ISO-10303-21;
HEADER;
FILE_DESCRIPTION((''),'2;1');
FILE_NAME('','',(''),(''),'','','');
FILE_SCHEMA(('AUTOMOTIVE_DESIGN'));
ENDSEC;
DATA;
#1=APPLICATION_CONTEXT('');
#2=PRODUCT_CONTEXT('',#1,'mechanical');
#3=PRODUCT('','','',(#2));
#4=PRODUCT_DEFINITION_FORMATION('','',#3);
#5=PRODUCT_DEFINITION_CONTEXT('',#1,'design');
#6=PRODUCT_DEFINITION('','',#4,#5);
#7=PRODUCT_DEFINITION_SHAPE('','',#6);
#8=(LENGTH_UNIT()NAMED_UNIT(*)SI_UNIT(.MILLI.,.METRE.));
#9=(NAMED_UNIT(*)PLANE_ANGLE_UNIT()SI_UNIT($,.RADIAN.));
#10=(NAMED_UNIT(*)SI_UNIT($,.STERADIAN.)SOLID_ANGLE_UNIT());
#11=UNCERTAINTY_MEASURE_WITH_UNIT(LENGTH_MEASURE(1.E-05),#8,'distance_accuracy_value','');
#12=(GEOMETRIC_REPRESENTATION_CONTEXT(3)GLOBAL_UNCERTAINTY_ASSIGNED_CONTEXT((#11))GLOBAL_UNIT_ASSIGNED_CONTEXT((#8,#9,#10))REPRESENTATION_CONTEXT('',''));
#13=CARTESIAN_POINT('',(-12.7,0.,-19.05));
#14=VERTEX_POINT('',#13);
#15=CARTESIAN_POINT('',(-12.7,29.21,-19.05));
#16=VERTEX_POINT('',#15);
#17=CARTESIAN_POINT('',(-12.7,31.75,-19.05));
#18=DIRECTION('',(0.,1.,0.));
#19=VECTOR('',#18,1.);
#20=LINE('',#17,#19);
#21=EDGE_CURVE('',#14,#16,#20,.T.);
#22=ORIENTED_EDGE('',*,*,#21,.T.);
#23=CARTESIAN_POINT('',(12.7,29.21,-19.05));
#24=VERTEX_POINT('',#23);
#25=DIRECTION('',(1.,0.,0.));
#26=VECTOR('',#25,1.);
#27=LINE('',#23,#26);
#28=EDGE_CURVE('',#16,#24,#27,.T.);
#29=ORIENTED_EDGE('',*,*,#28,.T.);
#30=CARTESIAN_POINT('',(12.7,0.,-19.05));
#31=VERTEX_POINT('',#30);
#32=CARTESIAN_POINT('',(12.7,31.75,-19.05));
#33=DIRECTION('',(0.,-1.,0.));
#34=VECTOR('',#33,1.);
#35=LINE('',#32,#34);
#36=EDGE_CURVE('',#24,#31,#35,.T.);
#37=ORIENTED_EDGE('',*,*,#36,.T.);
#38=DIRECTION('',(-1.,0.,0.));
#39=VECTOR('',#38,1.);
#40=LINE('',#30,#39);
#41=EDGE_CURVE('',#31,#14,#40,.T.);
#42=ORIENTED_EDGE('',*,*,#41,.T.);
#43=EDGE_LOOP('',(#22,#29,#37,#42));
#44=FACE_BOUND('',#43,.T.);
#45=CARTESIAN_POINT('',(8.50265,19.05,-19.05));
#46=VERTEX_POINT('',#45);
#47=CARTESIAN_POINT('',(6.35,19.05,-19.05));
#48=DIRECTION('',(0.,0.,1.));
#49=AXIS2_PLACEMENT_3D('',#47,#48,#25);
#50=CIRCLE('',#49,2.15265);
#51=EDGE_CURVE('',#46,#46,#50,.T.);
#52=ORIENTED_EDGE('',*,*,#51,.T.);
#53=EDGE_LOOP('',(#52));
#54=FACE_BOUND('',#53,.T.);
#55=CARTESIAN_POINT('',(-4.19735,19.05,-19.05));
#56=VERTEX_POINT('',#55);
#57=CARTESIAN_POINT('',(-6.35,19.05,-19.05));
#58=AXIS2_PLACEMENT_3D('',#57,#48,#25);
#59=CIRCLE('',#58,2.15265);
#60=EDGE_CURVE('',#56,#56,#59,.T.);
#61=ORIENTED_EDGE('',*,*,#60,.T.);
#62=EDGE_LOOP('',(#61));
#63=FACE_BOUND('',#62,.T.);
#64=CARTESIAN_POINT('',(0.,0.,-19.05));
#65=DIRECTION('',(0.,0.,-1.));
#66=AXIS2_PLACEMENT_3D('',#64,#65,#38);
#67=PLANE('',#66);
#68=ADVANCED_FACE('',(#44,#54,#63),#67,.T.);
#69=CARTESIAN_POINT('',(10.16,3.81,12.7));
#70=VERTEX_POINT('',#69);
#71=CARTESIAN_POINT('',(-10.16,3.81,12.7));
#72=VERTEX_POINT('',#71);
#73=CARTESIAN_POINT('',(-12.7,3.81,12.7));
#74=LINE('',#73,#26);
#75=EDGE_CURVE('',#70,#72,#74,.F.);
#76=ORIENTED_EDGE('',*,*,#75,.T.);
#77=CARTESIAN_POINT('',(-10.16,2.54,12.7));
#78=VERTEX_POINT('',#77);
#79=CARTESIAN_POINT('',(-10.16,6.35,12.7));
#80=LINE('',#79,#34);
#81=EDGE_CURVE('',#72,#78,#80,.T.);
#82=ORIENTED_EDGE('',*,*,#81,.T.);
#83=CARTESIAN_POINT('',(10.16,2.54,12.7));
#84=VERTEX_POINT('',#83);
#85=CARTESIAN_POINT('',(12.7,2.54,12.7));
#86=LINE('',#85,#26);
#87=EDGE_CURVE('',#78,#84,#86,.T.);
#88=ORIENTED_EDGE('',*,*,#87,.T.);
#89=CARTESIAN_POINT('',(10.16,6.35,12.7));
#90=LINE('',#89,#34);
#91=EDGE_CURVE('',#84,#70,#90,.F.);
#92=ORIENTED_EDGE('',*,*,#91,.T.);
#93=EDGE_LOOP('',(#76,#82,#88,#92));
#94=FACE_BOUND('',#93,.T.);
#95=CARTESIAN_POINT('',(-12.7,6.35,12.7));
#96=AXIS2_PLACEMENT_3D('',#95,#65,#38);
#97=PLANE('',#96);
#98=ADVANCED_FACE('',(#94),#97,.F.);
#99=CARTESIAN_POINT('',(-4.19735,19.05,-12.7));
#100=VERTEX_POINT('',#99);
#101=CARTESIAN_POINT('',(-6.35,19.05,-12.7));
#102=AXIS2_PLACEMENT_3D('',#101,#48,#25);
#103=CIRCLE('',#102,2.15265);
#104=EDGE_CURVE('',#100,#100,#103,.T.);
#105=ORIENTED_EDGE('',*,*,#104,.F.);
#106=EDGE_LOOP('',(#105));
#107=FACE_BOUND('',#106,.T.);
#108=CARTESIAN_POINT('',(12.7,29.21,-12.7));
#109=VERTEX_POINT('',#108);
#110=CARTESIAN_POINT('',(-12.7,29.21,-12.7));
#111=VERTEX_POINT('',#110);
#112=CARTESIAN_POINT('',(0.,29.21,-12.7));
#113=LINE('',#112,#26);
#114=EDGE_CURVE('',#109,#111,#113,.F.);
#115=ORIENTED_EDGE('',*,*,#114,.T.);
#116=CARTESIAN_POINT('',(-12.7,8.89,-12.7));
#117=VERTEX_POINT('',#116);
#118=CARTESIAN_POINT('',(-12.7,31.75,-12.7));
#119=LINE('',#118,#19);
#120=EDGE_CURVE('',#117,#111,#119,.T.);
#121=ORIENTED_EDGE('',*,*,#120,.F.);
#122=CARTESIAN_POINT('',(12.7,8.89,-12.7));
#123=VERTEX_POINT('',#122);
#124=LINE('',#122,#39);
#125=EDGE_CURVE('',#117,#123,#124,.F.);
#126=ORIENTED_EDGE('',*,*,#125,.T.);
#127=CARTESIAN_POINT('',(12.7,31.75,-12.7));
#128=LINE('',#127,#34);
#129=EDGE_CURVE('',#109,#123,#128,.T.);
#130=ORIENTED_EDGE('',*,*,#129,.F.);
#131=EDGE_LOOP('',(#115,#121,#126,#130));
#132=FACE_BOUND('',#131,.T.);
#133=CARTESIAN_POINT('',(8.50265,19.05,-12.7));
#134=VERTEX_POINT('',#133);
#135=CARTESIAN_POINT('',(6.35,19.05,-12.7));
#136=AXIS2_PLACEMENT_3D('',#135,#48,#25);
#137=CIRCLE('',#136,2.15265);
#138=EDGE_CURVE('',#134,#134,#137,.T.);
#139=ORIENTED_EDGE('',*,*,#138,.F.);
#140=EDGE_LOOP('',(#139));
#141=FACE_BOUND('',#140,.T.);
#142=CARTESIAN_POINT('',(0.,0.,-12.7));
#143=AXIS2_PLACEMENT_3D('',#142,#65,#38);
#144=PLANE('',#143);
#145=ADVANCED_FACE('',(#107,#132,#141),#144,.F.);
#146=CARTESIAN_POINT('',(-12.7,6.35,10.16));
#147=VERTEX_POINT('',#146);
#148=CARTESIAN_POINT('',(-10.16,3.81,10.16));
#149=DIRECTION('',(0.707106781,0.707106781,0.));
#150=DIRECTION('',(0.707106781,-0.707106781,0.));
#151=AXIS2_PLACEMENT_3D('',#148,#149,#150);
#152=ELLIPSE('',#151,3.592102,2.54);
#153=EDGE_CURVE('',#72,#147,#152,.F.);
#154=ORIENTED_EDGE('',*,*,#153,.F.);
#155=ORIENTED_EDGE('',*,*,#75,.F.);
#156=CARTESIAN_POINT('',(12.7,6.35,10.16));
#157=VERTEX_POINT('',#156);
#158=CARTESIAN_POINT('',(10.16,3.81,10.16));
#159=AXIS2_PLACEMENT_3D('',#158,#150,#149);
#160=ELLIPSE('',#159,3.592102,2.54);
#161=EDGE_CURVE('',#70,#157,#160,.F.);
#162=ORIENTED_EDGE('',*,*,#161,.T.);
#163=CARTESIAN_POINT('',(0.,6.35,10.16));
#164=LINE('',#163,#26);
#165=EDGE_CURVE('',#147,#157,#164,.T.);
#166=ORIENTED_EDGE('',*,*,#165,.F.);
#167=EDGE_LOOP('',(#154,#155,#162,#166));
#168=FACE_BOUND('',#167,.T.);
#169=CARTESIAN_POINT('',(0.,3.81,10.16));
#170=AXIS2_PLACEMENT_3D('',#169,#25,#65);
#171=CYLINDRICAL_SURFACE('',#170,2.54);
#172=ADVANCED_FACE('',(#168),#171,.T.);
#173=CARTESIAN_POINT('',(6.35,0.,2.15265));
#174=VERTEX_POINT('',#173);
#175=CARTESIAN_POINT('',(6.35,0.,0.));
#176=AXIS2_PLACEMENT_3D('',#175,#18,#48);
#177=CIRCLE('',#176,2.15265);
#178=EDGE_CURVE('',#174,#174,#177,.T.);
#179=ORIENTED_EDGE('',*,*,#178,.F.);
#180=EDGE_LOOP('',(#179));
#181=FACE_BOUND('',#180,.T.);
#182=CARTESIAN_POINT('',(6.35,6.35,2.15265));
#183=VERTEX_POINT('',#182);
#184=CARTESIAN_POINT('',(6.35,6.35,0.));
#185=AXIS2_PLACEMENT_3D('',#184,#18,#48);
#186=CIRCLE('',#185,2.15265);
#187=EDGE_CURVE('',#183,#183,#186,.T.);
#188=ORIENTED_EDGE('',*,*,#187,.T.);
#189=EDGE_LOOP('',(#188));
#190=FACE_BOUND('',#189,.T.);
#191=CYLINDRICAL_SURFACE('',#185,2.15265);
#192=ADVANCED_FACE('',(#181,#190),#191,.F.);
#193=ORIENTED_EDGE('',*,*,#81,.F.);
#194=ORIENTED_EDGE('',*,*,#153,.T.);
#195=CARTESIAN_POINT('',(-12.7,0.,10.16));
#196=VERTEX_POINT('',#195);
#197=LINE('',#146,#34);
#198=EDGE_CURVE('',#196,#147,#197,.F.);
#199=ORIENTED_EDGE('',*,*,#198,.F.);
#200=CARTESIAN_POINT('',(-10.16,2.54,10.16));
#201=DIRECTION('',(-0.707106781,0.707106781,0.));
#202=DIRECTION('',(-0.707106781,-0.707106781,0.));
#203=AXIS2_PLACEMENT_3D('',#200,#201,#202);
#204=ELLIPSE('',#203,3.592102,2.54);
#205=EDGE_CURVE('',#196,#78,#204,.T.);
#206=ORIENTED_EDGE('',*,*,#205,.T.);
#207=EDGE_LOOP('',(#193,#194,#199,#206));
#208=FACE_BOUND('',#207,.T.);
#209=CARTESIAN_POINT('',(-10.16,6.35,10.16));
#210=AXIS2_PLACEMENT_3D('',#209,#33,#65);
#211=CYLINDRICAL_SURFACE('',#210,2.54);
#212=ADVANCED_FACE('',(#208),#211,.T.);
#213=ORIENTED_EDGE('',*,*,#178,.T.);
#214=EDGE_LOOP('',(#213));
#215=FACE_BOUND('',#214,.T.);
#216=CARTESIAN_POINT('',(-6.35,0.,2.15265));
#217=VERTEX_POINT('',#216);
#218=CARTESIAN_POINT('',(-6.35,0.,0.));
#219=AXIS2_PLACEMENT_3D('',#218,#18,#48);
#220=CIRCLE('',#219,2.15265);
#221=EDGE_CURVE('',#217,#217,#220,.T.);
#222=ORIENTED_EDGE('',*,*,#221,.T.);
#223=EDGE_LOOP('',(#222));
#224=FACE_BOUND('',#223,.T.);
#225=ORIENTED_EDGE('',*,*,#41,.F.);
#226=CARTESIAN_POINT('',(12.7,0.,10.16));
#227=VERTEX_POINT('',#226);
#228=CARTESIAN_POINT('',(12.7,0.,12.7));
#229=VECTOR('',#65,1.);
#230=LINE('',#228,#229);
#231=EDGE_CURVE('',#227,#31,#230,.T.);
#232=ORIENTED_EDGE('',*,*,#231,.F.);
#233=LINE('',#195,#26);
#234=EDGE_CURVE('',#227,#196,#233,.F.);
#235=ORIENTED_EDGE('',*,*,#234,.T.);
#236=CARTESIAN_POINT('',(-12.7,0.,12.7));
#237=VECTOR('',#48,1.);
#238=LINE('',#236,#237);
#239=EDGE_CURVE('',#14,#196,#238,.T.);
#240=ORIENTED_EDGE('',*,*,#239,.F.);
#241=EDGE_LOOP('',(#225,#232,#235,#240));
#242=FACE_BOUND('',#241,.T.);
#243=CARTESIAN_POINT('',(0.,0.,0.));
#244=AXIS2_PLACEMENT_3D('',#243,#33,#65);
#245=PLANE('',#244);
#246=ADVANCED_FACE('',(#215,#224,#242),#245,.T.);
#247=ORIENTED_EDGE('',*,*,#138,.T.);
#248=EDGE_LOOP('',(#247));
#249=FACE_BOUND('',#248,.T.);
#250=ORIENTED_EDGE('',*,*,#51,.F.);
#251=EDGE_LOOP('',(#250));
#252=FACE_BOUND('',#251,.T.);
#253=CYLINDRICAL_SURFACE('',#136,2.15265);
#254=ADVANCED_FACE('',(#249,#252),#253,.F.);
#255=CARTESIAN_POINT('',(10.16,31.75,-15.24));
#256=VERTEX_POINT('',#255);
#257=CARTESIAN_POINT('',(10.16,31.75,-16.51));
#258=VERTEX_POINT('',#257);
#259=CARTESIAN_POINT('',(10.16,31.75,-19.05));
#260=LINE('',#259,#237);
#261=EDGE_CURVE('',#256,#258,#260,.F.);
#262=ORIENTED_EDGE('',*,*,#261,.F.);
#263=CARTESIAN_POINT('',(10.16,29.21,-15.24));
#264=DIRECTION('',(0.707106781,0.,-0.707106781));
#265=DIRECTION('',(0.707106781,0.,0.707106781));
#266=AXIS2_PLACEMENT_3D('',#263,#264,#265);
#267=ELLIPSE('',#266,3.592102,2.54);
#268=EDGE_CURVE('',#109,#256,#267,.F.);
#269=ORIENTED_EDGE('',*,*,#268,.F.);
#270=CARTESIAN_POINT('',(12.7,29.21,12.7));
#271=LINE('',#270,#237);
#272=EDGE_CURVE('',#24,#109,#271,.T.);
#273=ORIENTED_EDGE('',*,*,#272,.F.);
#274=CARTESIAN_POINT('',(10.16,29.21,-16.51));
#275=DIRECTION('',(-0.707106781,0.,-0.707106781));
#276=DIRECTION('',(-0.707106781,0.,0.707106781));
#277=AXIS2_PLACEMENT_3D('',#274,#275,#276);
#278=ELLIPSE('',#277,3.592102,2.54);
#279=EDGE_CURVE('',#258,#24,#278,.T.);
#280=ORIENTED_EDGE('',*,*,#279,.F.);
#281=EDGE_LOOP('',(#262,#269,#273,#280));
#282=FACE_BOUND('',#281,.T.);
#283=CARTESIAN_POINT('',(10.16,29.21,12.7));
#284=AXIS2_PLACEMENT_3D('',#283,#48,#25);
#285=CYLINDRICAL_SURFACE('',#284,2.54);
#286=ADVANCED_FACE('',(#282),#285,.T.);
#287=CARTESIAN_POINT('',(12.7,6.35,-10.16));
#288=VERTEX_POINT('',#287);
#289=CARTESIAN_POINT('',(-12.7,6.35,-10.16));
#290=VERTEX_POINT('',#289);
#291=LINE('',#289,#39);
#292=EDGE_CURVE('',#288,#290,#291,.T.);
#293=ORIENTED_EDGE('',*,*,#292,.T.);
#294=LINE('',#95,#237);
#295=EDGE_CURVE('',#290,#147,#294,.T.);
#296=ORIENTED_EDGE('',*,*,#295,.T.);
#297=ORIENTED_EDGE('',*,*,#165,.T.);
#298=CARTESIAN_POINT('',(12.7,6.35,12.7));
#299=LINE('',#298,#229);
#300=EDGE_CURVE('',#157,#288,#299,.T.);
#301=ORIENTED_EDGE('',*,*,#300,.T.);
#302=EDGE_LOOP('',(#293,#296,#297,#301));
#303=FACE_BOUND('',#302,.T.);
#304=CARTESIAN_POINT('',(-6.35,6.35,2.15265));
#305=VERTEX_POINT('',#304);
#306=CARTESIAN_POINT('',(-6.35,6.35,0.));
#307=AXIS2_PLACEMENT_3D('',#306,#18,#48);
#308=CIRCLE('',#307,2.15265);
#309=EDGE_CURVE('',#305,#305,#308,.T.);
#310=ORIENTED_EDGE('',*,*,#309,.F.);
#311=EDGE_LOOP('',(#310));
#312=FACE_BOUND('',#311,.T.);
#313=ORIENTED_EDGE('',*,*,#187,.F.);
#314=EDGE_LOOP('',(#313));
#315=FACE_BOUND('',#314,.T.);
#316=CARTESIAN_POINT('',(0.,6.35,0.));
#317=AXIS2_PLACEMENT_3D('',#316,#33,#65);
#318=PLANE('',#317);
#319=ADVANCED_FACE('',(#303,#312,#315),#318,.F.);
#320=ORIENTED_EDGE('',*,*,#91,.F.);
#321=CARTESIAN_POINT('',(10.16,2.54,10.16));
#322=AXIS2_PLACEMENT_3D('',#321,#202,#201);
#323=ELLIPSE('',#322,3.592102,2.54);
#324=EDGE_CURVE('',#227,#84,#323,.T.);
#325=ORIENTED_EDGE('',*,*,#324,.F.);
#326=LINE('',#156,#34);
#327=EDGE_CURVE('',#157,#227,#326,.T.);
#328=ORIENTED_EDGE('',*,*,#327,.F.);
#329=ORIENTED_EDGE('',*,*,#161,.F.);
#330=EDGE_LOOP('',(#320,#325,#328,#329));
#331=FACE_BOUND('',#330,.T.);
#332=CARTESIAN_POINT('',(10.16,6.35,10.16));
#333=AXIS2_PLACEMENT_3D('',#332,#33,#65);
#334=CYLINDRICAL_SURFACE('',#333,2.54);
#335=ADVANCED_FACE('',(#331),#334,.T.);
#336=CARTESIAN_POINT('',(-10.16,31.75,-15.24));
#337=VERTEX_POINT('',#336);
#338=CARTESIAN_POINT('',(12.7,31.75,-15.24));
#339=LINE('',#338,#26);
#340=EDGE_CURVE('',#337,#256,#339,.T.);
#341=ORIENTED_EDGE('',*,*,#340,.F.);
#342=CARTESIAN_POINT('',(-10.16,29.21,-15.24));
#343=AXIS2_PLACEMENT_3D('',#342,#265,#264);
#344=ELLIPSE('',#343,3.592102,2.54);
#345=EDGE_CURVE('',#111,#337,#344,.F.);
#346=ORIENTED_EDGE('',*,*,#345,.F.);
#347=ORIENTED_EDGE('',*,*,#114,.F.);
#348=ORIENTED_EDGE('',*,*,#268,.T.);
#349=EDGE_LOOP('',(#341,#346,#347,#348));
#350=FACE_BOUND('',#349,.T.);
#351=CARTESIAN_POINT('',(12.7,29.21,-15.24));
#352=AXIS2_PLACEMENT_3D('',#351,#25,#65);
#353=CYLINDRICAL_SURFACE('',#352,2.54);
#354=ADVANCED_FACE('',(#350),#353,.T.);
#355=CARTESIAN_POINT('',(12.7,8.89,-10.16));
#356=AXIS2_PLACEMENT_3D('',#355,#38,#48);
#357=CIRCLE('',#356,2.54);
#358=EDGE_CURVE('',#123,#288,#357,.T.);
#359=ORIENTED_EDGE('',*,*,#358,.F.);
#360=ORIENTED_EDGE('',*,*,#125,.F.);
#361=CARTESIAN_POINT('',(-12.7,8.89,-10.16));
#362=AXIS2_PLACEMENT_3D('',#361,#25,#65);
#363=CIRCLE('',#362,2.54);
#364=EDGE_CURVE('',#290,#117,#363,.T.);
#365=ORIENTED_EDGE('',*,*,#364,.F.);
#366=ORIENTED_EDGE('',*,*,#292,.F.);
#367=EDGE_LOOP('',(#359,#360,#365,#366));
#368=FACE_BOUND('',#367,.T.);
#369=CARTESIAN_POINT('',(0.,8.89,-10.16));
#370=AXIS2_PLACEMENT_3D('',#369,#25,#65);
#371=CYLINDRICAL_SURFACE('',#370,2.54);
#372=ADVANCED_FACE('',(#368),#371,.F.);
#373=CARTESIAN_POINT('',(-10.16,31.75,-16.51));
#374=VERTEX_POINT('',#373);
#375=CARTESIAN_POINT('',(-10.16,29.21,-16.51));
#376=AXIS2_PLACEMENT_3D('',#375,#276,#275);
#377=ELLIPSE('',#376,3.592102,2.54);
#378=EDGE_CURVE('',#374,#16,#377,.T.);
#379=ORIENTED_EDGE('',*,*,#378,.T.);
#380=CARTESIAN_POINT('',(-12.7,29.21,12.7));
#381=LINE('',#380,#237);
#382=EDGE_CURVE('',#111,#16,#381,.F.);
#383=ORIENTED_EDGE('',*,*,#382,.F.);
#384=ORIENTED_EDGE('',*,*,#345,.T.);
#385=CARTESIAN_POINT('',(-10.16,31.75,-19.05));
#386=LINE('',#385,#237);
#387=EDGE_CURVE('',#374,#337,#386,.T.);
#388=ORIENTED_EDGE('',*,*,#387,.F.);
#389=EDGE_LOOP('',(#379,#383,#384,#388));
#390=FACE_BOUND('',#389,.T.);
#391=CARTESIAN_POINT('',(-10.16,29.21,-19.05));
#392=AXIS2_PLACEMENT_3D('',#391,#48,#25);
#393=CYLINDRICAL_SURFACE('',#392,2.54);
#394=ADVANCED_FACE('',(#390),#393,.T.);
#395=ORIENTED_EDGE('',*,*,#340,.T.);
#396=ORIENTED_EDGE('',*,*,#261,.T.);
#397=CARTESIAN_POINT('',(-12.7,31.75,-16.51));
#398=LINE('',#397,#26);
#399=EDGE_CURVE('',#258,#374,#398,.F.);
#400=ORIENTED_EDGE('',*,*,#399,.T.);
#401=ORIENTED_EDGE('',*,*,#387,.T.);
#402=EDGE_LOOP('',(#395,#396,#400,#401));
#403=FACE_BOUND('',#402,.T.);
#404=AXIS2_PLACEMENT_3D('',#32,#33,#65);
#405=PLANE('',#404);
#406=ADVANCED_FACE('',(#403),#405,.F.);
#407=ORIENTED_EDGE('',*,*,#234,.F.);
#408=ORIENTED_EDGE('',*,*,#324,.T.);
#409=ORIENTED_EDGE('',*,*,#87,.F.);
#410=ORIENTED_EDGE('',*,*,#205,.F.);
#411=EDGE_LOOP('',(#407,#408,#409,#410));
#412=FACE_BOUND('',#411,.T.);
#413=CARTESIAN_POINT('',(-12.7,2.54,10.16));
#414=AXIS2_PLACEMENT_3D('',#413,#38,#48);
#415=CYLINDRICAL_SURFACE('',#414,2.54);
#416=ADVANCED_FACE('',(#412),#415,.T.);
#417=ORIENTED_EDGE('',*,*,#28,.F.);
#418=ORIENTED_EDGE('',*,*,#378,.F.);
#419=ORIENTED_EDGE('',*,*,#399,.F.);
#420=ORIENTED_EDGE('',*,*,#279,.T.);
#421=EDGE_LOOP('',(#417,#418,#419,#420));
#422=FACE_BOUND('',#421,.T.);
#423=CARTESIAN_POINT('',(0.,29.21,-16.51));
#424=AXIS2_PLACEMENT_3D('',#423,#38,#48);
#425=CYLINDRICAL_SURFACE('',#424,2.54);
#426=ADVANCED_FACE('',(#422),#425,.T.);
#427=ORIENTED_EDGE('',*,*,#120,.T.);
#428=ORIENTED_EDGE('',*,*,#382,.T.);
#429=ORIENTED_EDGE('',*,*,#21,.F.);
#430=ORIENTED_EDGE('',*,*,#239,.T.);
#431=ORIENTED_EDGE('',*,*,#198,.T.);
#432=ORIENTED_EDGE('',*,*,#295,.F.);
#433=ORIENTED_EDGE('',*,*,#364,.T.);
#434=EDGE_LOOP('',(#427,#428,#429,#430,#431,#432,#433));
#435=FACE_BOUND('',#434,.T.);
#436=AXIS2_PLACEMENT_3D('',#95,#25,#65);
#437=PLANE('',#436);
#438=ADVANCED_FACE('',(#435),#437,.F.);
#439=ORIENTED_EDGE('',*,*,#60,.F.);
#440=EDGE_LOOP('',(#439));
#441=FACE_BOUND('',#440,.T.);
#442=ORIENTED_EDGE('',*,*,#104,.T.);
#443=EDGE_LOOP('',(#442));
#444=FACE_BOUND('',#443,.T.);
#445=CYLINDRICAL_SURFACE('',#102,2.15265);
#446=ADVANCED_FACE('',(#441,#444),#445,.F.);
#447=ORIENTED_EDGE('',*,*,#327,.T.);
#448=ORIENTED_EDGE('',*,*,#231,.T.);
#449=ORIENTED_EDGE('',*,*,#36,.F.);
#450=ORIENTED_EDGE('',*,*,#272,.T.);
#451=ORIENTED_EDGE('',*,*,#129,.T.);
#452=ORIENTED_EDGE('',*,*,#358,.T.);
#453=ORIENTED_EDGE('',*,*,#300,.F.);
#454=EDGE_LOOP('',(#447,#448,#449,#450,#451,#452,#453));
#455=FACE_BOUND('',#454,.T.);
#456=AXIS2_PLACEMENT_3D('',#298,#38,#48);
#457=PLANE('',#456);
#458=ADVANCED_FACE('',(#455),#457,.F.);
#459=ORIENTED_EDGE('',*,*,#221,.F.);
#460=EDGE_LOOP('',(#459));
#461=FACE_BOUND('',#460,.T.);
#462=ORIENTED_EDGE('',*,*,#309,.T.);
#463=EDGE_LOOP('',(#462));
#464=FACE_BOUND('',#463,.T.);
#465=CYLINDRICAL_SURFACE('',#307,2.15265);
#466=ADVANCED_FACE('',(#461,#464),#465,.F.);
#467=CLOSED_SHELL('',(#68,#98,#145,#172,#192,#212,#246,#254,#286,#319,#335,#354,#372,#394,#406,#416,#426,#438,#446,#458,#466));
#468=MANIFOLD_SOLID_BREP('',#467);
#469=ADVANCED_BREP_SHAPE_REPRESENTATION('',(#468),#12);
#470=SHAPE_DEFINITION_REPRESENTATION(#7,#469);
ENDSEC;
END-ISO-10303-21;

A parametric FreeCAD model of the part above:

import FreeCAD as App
import Part
import Sketcher
Q = App.Units.Quantity


def edges_at(feature, points):
    """Names of the edges that pass closest to the given points."""
    edges = feature.Shape.Edges
    near = lambda p: min(range(len(edges)), key=lambda i: edges[i].distToShape(Part.Vertex(*p))[0])
    return sorted({f"Edge{near(p) + 1}" for p in points})


def add_polygon(sketch, points):
    """Adds a closed chain of lines whose ends are joined by coincident constraints."""
    first, n = sketch.GeometryCount, len(points)
    for a, b in zip(points, points[1:] + points[:1]):
        sketch.addGeometry(Part.LineSegment(App.Vector(*a, 0), App.Vector(*b, 0)), False)
    for i in range(n):
        sketch.addConstraint(Sketcher.Constraint("Coincident", first + i, 2, first + (i + 1) % n, 1))

doc = App.newDocument("Part")
body = doc.addObject("PartDesign::Body", "Body")

# Sketch on XZ plane
sketch1 = body.newObject("Sketcher::SketchObject", "Sketch")
sketch1.AttachmentSupport = (doc.getObject("XZ_Plane"), [""])
sketch1.MapMode = "FlatFace"
add_polygon(sketch1, [(-12.7, -12.7), (-12.7, 12.7), (12.7, 12.7), (12.7, -12.7)])  # lines 0-3
sketch1.addConstraint([
    Sketcher.Constraint("Vertical", 0),
    Sketcher.Constraint("Horizontal", 1),
    Sketcher.Constraint("Vertical", 2),
    Sketcher.Constraint("Horizontal", 3),
    Sketcher.Constraint("Symmetric", 0, 2, 2, 2, -1, 1),
    Sketcher.Constraint("Equal", 3, 0),
    Sketcher.Constraint("DistanceX", 1, 1, 1, 2, Q("1 in")),
])
pad1 = body.newObject("PartDesign::Pad", "Pad")
pad1.Profile = sketch1
pad1.Length = Q("0.25 in")
pad1.Reversed = True

# Sketch on XY plane
sketch2 = body.newObject("Sketcher::SketchObject", "Sketch001")
sketch2.AttachmentSupport = (doc.getObject("XY_Plane"), [""])
sketch2.MapMode = "FlatFace"
sketch2.AttachmentOffset = App.Placement(App.Vector(0, 0, -0.5 * 25.4), App.Rotation())
add_polygon(sketch2, [(12.7, 31.75), (12.7, 0), (-12.7, 0), (-12.7, 31.75)])  # lines 0-3
sketch2.addConstraint([
    Sketcher.Constraint("Vertical", 0),
    Sketcher.Constraint("Horizontal", 1),
    Sketcher.Constraint("Vertical", 2),
    Sketcher.Constraint("Horizontal", 3),
    Sketcher.Constraint("Symmetric", 0, 2, 1, 2, -1, 1),
    Sketcher.Constraint("DistanceX", 1, 2, 1, 1, Q("1 in")),
    Sketcher.Constraint("DistanceY", 0, 2, 0, 1, Q("1.25 in")),
])
pad2 = body.newObject("PartDesign::Pad", "Pad001")
pad2.Profile = sketch2
pad2.Length = Q("0.25 in")
pad2.Reversed = True
doc.recompute()

fillet = body.newObject("PartDesign::Fillet", "Fillet")
fillet.Base = (pad2, edges_at(pad2, [
    (0, 31.75, -12.7),
    (-12.7, 31.75, -15.875),
    (12.7, 31.75, -15.875),
    (0, 6.35, 12.7),
    (0, 31.75, -19.05),
    (0, 0, 12.7),
    (12.7, 3.175, 12.7),
    (-12.7, 3.175, 12.7),
    (0, 6.35, -12.7),
]))
fillet.Radius = Q("0.1 in")

# Sketch on XZ plane
sketch3 = body.newObject("Sketcher::SketchObject", "Sketch002")
sketch3.AttachmentSupport = (doc.getObject("XZ_Plane"), [""])
sketch3.MapMode = "FlatFace"
sketch3.AttachmentOffset = App.Placement(App.Vector(0, 0, -0.25 * 25.4), App.Rotation())
sketch3.addGeometry([
    Part.Circle(App.Vector(-6.35, 0, 0), App.Vector(0, 0, 1), 2.15265),
    Part.Circle(App.Vector(6.35, 0, 0), App.Vector(0, 0, 1), 2.15265),
], False)
sketch3.addConstraint([
    Sketcher.Constraint("Equal", 0, 1),
    Sketcher.Constraint("Symmetric", 0, 3, 1, 3, -1, 1),
    Sketcher.Constraint("PointOnObject", 0, 3, -1),
    Sketcher.Constraint("Diameter", 0, Q("0.1695 in")),
    Sketcher.Constraint("DistanceX", 0, 3, 1, 3, Q("0.5 in")),
])
doc.recompute()
hole = body.newObject("PartDesign::Hole", "Hole")
hole.Profile = sketch3
hole.ThreadType = "None"
hole.Diameter = Q("0.1695 in")
hole.DepthType = "ThroughAll"
hole.Reversed = True

# Sketch on XY plane
sketch4 = body.newObject("Sketcher::SketchObject", "Sketch003")
sketch4.AttachmentSupport = (doc.getObject("XY_Plane"), [""])
sketch4.MapMode = "FlatFace"
sketch4.AttachmentOffset = App.Placement(App.Vector(0, 0, -0.5 * 25.4), App.Rotation())
sketch4.addGeometry([
    Part.Circle(App.Vector(6.35, 19.05, 0), App.Vector(0, 0, 1), 2.15265),
    Part.Circle(App.Vector(-6.35, 19.05, 0), App.Vector(0, 0, 1), 2.15265),
], False)
sketch4.addConstraint([
    Sketcher.Constraint("Equal", 0, 1),
    Sketcher.Constraint("Symmetric", 0, 3, 1, 3, -2),
    Sketcher.Constraint("Diameter", 0, Q("0.1695 in")),
    Sketcher.Constraint("DistanceX", 1, 3, 0, 3, Q("0.5 in")),
    Sketcher.Constraint("DistanceY", -1, 1, 0, 3, Q("0.75 in")),
])
doc.recompute()
hole2 = body.newObject("PartDesign::Hole", "Hole001")
hole2.Profile = sketch4
hole2.ThreadType = "None"
hole2.Diameter = Q("0.1695 in")
hole2.DepthType = "ThroughAll"

doc.recompute()
